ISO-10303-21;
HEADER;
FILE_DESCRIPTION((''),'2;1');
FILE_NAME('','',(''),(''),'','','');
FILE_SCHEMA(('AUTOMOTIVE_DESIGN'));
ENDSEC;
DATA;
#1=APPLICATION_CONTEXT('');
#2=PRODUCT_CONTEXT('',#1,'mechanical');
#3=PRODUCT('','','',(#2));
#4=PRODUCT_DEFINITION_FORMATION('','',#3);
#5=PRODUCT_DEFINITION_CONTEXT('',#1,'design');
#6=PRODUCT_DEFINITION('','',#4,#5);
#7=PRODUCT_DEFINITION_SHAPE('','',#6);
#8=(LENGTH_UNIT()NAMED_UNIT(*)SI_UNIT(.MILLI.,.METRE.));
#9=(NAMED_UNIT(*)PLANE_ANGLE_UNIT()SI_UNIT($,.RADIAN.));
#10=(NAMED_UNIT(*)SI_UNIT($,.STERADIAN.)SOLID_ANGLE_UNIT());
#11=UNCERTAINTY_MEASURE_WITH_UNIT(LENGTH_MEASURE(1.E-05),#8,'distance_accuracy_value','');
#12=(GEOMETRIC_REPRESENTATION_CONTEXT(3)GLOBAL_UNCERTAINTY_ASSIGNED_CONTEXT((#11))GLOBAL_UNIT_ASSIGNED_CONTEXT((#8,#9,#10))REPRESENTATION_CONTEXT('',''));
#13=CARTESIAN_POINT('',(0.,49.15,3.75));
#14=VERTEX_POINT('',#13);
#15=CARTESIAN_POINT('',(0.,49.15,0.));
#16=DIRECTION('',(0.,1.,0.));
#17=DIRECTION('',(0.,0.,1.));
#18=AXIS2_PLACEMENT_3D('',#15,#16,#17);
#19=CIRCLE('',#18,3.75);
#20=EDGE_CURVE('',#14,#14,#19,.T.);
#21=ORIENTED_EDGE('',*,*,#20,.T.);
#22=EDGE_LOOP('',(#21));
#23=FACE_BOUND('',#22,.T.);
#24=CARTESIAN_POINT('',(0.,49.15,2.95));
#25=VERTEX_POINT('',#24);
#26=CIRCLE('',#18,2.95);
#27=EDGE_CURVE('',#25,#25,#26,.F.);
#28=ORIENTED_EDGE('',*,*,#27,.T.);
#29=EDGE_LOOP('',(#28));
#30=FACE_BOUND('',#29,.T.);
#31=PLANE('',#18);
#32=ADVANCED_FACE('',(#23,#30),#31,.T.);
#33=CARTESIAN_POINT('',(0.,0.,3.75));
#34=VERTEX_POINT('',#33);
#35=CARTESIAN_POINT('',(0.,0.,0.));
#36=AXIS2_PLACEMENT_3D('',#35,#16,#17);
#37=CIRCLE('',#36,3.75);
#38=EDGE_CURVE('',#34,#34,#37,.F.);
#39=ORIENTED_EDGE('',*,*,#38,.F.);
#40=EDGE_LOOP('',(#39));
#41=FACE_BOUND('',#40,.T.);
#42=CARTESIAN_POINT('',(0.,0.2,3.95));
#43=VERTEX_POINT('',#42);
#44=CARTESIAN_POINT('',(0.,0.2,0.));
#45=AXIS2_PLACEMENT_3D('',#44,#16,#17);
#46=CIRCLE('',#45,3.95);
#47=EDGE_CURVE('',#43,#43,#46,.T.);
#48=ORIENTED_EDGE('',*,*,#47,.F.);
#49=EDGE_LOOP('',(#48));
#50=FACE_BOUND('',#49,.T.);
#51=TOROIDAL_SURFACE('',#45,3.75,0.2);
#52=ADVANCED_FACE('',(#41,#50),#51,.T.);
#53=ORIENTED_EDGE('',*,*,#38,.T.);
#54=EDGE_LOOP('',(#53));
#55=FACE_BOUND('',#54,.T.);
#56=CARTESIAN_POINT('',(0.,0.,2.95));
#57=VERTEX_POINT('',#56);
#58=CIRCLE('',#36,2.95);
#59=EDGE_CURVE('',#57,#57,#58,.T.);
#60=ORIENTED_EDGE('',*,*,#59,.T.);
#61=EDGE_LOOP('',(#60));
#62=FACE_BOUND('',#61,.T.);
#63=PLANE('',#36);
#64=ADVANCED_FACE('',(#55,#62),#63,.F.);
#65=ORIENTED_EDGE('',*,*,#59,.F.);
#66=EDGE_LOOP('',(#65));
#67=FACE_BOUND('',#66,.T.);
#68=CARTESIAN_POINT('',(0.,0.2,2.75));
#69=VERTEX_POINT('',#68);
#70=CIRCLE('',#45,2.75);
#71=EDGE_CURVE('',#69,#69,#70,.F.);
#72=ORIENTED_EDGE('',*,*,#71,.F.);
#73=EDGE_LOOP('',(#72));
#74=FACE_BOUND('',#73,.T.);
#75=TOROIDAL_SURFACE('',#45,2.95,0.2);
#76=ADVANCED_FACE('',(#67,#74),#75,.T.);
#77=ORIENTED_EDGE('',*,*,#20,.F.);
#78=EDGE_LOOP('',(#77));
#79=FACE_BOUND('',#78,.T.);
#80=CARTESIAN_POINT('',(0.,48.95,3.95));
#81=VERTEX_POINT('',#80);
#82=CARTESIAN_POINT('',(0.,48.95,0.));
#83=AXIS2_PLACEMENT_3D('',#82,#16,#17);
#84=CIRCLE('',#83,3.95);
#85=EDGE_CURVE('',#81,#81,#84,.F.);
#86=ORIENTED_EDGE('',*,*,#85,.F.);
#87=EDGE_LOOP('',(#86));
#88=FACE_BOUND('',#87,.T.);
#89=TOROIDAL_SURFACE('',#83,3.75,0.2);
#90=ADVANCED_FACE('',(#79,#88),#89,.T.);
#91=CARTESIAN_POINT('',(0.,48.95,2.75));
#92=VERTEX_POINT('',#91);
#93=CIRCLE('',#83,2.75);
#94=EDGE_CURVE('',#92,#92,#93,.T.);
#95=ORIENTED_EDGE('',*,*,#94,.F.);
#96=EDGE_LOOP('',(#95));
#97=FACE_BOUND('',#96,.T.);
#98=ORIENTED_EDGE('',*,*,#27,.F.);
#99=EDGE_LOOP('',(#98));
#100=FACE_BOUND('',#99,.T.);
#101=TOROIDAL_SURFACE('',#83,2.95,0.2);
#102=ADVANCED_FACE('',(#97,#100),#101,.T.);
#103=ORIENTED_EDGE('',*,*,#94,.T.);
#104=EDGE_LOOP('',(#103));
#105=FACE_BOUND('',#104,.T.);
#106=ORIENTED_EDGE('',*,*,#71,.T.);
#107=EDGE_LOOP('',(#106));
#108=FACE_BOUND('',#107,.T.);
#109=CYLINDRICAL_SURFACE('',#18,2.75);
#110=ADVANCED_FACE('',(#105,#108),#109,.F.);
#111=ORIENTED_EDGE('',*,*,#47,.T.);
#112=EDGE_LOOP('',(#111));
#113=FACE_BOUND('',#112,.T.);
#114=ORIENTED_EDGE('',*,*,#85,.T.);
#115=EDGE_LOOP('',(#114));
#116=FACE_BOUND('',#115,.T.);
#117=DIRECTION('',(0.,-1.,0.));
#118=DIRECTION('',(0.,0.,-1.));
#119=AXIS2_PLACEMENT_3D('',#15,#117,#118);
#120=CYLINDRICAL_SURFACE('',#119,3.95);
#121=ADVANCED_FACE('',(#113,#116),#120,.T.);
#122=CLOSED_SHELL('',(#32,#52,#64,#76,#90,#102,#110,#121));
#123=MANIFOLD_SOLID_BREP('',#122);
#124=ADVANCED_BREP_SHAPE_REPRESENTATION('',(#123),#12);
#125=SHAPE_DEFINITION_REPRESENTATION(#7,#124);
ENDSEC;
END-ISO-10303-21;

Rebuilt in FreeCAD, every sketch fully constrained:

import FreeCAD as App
import Part
import Sketcher
from FreeCAD import Vector
Q = App.Units.Quantity


def edges_at(feature, points):
    """Names of the edges that pass closest to the given points."""
    edges = feature.Shape.Edges
    near = lambda p: min(range(len(edges)), key=lambda i: edges[i].distToShape(Part.Vertex(*p))[0])
    return sorted({f"Edge{near(p) + 1}" for p in points})

doc = App.newDocument("Part")
body = doc.addObject("PartDesign::Body", "Body")

sketch1 = body.newObject("Sketcher::SketchObject", "Sketch")
sketch1.AttachmentSupport = (doc.getObject("XZ_Plane"), [""])
sketch1.MapMode = "FlatFace"
sketch1.addGeometry(Part.Circle(Vector(0, 0, 0), Vector(0, 0, 1), 4), False)
sketch1.addConstraint(Sketcher.Constraint("Coincident", 0, 3, -1, 1))
sketch1.addConstraint(Sketcher.Constraint("Diameter", 0, Q("7.9 mm")))
pad1 = body.newObject("PartDesign::Pad", "Pad")
pad1.Profile = sketch1
pad1.Length = 49.15
pad1.Reversed = True

sketch2 = body.newObject("Sketcher::SketchObject", "Sketch001")
sketch2.AttachmentSupport = (doc.getObject("XZ_Plane"), [""])
sketch2.MapMode = "FlatFace"
sketch2.AttachmentOffset = App.Placement(Vector(0, 0, -49.15), App.Rotation())
sketch2.addGeometry(Part.Circle(Vector(0, 0, 0), Vector(0, 0, 1), 2.8), False)
sketch2.addConstraint(Sketcher.Constraint("Coincident", 0, 3, -1, 1))
sketch2.addConstraint(Sketcher.Constraint("Diameter", 0, Q("5.5 mm")))
doc.recompute()
hole = body.newObject("PartDesign::Hole", "Hole")
hole.Profile = sketch2
hole.ThreadType = "None"
hole.Diameter = 5.5
hole.DepthType = "Dimension"
hole.Depth = 49.15
hole.DrillPoint = "Angled"
hole.DrillPointAngle = 118
hole.Reversed = True
doc.recompute()

fillet = body.newObject("PartDesign::Fillet", "Fillet")
fillet.Base = (hole, edges_at(hole, [
    (0, 0, -3.95),
    (0, 49.15, -3.95),
    (2.75, 49.15, 0),
    (2.75, 0, 0),
]))
fillet.Radius = 0.2

doc.recompute()
